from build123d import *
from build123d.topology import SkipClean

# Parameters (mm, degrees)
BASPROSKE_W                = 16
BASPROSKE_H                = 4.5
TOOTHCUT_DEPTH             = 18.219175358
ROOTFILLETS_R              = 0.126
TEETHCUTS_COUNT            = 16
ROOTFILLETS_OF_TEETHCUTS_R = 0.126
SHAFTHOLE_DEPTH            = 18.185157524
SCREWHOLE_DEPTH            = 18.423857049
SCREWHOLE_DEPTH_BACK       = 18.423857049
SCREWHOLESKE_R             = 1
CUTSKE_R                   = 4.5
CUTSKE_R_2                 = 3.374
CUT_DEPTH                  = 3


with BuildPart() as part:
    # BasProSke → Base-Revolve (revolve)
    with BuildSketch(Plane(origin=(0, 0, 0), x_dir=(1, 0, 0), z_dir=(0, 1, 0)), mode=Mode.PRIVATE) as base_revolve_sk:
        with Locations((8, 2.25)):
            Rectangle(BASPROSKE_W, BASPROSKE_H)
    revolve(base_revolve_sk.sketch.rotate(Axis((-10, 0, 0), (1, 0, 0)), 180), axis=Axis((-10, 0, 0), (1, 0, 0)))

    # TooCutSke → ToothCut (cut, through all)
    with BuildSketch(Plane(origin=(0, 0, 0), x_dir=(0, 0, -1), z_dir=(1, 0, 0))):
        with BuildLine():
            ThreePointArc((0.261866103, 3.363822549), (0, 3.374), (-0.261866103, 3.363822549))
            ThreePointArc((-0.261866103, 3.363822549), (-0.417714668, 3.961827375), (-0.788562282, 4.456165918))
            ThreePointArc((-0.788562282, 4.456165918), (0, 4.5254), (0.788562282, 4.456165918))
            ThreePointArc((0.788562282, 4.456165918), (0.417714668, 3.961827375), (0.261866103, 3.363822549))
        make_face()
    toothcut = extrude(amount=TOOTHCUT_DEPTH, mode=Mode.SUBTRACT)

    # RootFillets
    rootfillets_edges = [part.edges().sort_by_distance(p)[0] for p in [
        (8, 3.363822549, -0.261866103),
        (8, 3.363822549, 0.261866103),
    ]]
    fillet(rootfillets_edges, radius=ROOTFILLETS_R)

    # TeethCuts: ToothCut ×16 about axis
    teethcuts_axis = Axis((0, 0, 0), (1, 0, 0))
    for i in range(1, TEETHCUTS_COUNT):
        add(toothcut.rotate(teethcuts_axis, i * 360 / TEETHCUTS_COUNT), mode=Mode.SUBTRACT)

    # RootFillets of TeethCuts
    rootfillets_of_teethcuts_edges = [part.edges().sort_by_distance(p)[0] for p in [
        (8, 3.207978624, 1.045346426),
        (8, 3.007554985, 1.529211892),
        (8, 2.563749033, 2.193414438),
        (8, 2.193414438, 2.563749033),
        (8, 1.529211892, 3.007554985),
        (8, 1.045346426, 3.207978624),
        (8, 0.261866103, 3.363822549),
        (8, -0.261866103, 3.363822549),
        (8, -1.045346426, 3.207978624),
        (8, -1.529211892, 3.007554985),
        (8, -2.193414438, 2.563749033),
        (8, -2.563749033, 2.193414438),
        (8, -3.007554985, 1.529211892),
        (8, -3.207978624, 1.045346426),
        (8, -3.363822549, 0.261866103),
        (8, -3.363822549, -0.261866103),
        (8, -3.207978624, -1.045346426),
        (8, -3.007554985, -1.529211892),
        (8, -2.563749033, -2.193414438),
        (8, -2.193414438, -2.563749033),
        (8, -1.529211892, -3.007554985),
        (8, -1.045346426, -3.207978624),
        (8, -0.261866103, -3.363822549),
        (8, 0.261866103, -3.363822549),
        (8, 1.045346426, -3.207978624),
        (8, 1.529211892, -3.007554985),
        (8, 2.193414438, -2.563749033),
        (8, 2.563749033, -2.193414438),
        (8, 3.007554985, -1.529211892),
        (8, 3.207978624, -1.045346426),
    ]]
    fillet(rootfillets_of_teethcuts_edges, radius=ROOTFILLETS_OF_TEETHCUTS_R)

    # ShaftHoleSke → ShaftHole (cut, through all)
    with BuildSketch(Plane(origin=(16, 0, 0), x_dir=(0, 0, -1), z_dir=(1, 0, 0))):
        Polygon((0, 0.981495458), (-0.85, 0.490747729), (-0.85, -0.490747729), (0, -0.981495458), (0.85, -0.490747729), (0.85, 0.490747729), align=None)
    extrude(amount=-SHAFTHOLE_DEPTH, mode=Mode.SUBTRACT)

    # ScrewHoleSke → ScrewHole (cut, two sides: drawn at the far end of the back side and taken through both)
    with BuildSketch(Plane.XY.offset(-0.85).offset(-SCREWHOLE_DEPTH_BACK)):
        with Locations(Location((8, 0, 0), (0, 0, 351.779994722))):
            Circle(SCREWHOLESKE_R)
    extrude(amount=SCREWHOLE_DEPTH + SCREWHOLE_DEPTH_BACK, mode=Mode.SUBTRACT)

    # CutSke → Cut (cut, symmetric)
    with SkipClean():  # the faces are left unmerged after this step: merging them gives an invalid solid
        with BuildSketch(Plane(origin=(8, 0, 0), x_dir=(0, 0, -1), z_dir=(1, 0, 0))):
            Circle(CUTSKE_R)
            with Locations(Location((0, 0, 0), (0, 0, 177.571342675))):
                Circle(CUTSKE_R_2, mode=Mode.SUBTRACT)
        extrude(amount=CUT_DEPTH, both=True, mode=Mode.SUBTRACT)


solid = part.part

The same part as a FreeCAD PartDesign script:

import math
import FreeCAD as App
import Part
import Sketcher
from FreeCAD import Vector
Q = App.Units.Quantity


def edges_at(feature, points):
    """Names of the edges that pass closest to the given points."""
    edges = feature.Shape.Edges
    near = lambda p: min(range(len(edges)), key=lambda i: edges[i].distToShape(Part.Vertex(*p))[0])
    return sorted({f"Edge{near(p) + 1}" for p in points})


def add_polygon(sketch, points):
    """Adds a closed chain of lines whose ends are joined by coincident constraints."""
    first, n = sketch.GeometryCount, len(points)
    for a, b in zip(points, points[1:] + points[:1]):
        sketch.addGeometry(Part.LineSegment(App.Vector(*a, 0), App.Vector(*b, 0)), False)
    for i in range(n):
        sketch.addConstraint(Sketcher.Constraint("Coincident", first + i, 2, first + (i + 1) % n, 1))

doc = App.newDocument("Part")
body = doc.addObject("PartDesign::Body", "Body")

# Sketch on XZ plane
sketch1 = body.newObject("Sketcher::SketchObject", "Sketch")
sketch1.AttachmentSupport = (doc.getObject("XZ_Plane"), [""])
sketch1.MapMode = "FlatFace"
add_polygon(sketch1, [(0, -4.5), (0, 0), (16, 0), (16, -4.5)])  # lines 0-3
sketch1.addConstraint([
    Sketcher.Constraint("Vertical", 0),
    Sketcher.Constraint("Horizontal", 1),
    Sketcher.Constraint("Vertical", 2),
    Sketcher.Constraint("Horizontal", 3),
    Sketcher.Constraint("Coincident", 0, 2, -1, 1),
    Sketcher.Constraint("DistanceX", 1, 1, 1, 2, 16.0),
    Sketcher.Constraint("DistanceY", 0, 1, 0, 2, 4.5),
])
revolution = body.newObject("PartDesign::Revolution", "Revolution")
revolution.Profile = sketch1
revolution.ReferenceAxis = (sketch1, ["H_Axis"])
revolution.Angle = 360

# Sketch on YZ plane
sketch2 = body.newObject("Sketcher::SketchObject", "Sketch001")
sketch2.AttachmentSupport = (doc.getObject("YZ_Plane"), [""])
sketch2.MapMode = "FlatFace"
sketch2.addGeometry([
    Part.ArcOfCircle(Part.Circle(Vector(0, 0, 0), Vector(0, 0, 1), 3.374), math.radians(-4.451371), math.radians(4.451371)),
    Part.ArcOfCircle(Part.Circle(Vector(3.266916, -1.858929, 0), Vector(0, 0, 1), 1.6), math.radians(41.988316), math.radians(86.527661)),
    Part.ArcOfCircle(Part.Circle(Vector(0, 0, 0), Vector(0, 0, 1), 4.5254), math.radians(-10.035161), math.radians(10.035161)),
    Part.ArcOfCircle(Part.Circle(Vector(3.266916, 1.858929, 0), Vector(0, 0, 1), 1.6), math.radians(-86.527661), math.radians(-41.988316)),
], False)
sketch2.addConstraint([
    Sketcher.Constraint("Coincident", 0, 1, 1, 2),
    Sketcher.Constraint("Coincident", 1, 1, 2, 1),
    Sketcher.Constraint("Coincident", 2, 2, 3, 2),
    Sketcher.Constraint("Coincident", 3, 1, 0, 2),
    Sketcher.Constraint("Coincident", 0, 3, -1, 1),
    Sketcher.Constraint("Coincident", 2, 3, -1, 1),
    Sketcher.Constraint("Equal", 1, 3),
    Sketcher.Constraint("Symmetric", 1, 3, 3, 3, -1),
    Sketcher.Constraint("Radius", 1, 1.6),
    Sketcher.Constraint("Radius", 0, 3.374),
    Sketcher.Constraint("Radius", 2, 4.5254),
    Sketcher.Constraint("DistanceY", 1, 3, -1, 1, 1.858929),
    Sketcher.Constraint("DistanceX", 1, 3, 1, 1, 1.18925),
])
pocket1 = body.newObject("PartDesign::Pocket", "Pocket")
pocket1.Profile = sketch2
pocket1.Type = "ThroughAll"
pocket1.Reversed = True
doc.recompute()

fillet = body.newObject("PartDesign::Fillet", "Fillet")
fillet.Base = (pocket1, edges_at(pocket1, [(8, 3.364, -0.262), (8, 3.364, 0.262)]))
fillet.Radius = 0.126
doc.recompute()

polarpattern = body.newObject("PartDesign::PolarPattern", "PolarPattern")
polarpattern.Originals = [pocket1]
polarpattern.Axis = (doc.getObject("X_Axis"), [""])
polarpattern.Angle = 360
polarpattern.Occurrences = 16
body.Tip = polarpattern
doc.recompute()

fillet2 = body.newObject("PartDesign::Fillet", "Fillet001")
fillet2.Base = (polarpattern, edges_at(polarpattern, [
    (8, 3.208, 1.045),
    (8, 3.008, 1.529),
    (8, 2.564, 2.193),
    (8, 2.193, 2.564),
    (8, 1.529, 3.008),
    (8, 1.045, 3.208),
    (8, 0.262, 3.364),
    (8, -0.262, 3.364),
    (8, -1.045, 3.208),
    (8, -1.529, 3.008),
    (8, -2.193, 2.564),
    (8, -2.564, 2.193),
    (8, -3.008, 1.529),
    (8, -3.208, 1.045),
    (8, -3.364, 0.262),
    (8, -3.364, -0.262),
    (8, -3.208, -1.045),
    (8, -3.008, -1.529),
    (8, -2.564, -2.193),
    (8, -2.193, -2.564),
    (8, -1.529, -3.008),
    (8, -1.045, -3.208),
    (8, -0.262, -3.364),
    (8, 0.262, -3.364),
    (8, 1.045, -3.208),
    (8, 1.529, -3.008),
    (8, 2.193, -2.564),
    (8, 2.564, -2.193),
    (8, 3.008, -1.529),
    (8, 3.208, -1.045),
]))
fillet2.Radius = 0.126

# Sketch on YZ plane
sketch3 = body.newObject("Sketcher::SketchObject", "Sketch002")
sketch3.AttachmentSupport = (doc.getObject("YZ_Plane"), [""])
sketch3.MapMode = "FlatFace"
sketch3.AttachmentOffset = App.Placement(Vector(0, 0, 16), App.Rotation())
add_polygon(sketch3, [(0.981495, 0), (0.490748, 0.85), (-0.490748, 0.85), (-0.981495, 0), (-0.490748, -0.85), (0.490748, -0.85)])  # lines 0-5
sketch3.addConstraint([
    Sketcher.Constraint("Horizontal", 1),
    Sketcher.Constraint("Horizontal", 4),
    Sketcher.Constraint("Symmetric", 0, 2, 3, 2, -1, 1),
    Sketcher.Constraint("Symmetric", 2, 2, 5, 2, -1, 1),
    Sketcher.Constraint("PointOnObject", 2, 2, -1),
    Sketcher.Constraint("Parallel", 2, 5),
    Sketcher.Constraint("Vertical", 1, 2, 3, 2),
    Sketcher.Constraint("Angle", 0, Q("120 deg")),
    Sketcher.Constraint("DistanceY", 3, 2, 1, 2, 1.7),
    Sketcher.Constraint("DistanceX", 1, 2, 1, 1, 0.981495),
])
pocket2 = body.newObject("PartDesign::Pocket", "Pocket001")
pocket2.Profile = sketch3
pocket2.Type = "ThroughAll"

# Sketch on XY plane
sketch4 = body.newObject("Sketcher::SketchObject", "Sketch003")
sketch4.AttachmentSupport = (doc.getObject("XY_Plane"), [""])
sketch4.MapMode = "FlatFace"
sketch4.AttachmentOffset = App.Placement(Vector(0, 0, -0.85), App.Rotation())
sketch4.addGeometry(Part.Circle(Vector(8, 0, 0), Vector(0, 0, 1), 1), False)
sketch4.addConstraint([
    Sketcher.Constraint("PointOnObject", 0, 3, -1),
    Sketcher.Constraint("Diameter", 0, 2.0),
    Sketcher.Constraint("DistanceX", -1, 1, 0, 3, 8.0),
])
pocket3 = body.newObject("PartDesign::Pocket", "Pocket002")
pocket3.Profile = sketch4
pocket3.Type = "ThroughAll"
pocket3.Midplane = True

# Sketch on YZ plane
sketch5 = body.newObject("Sketcher::SketchObject", "Sketch004")
sketch5.AttachmentSupport = (doc.getObject("YZ_Plane"), [""])
sketch5.MapMode = "FlatFace"
sketch5.AttachmentOffset = App.Placement(Vector(0, 0, 8), App.Rotation())
sketch5.addGeometry([
    Part.Circle(Vector(0, 0, 0), Vector(0, 0, 1), 4.5),
    Part.Circle(Vector(0, 0, 0), Vector(0, 0, 1), 3.374),
], False)
sketch5.addConstraint([
    Sketcher.Constraint("Coincident", 0, 3, -1, 1),
    Sketcher.Constraint("Coincident", 1, 3, -1, 1),
    Sketcher.Constraint("Diameter", 0, 9.0),
    Sketcher.Constraint("Diameter", 1, 6.748),
])
pocket4 = body.newObject("PartDesign::Pocket", "Pocket003")
pocket4.Profile = sketch5
pocket4.Length = 6
pocket4.Midplane = True

doc.recompute()
